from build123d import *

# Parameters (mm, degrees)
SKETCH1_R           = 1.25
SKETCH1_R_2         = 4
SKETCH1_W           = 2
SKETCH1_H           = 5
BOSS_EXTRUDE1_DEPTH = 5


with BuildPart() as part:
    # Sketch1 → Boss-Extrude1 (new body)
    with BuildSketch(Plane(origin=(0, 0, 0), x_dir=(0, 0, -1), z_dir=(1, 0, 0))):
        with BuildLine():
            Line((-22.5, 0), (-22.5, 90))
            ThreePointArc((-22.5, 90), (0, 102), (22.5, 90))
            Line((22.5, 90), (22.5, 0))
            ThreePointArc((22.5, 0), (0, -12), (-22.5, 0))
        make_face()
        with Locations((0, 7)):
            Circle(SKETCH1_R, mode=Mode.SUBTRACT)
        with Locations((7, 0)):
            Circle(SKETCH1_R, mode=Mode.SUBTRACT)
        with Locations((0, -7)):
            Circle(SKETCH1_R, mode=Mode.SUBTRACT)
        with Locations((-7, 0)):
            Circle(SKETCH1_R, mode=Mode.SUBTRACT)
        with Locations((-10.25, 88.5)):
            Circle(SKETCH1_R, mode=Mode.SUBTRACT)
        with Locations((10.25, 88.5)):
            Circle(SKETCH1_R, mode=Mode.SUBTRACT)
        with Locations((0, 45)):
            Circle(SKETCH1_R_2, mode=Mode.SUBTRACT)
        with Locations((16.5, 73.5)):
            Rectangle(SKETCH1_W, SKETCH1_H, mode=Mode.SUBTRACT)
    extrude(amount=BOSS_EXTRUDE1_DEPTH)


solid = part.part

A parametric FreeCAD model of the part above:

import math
import FreeCAD as App
import Part
import Sketcher
from FreeCAD import Vector

doc = App.newDocument("Part")
params = doc.addObject("Spreadsheet::Sheet", "Params")
for row, (alias, value) in enumerate([
    ("sketch1_diameter", "8 mm"),
    ("sketch1_diameter2", "2.5 mm"),
    ("sketch1_width", "90 mm"),
    ("sketch1_width2", "5 mm"),
    ("sketch1_height", "2 mm"),
    ("pad1_length", "5 mm"),
], start=1):
    params.set(f"A{row}", alias)
    params.set(f"B{row}", "=" + value)
    params.setAlias(f"B{row}", alias)

body = doc.addObject("PartDesign::Body", "Body")

# Sketch on YZ plane
sketch1 = body.newObject("Sketcher::SketchObject", "Sketch")
sketch1.AttachmentSupport = (doc.getObject("YZ_Plane"), [""])
sketch1.MapMode = "FlatFace"
sketch1.addGeometry(Part.LineSegment(Vector(90, 22.5, 0), Vector(0, 22.5, 0)), False)
sketch1.addGeometry(Part.ArcOfCircle(Part.Circle(Vector(15.09375, 0, 0), Vector(0, 0, 1), 27.09375), math.radians(123.855026), math.radians(236.144974)), False)
sketch1.addGeometry(Part.LineSegment(Vector(0, -22.5, 0), Vector(90, -22.5, 0)), False)
sketch1.addGeometry(Part.ArcOfCircle(Part.Circle(Vector(74.90625, 0, 0), Vector(0, 0, 1), 27.09375), math.radians(-56.144974), math.radians(56.144974)), False)
sketch1.addGeometry(Part.Circle(Vector(0, -7, 0), Vector(0, 0, 1), 1.25), False)
sketch1.addGeometry(Part.Circle(Vector(-7, 0, 0), Vector(0, 0, 1), 1.25), False)
sketch1.addGeometry(Part.Circle(Vector(7, 0, 0), Vector(0, 0, 1), 1.25), False)
sketch1.addGeometry(Part.Circle(Vector(0, 7, 0), Vector(0, 0, 1), 1.25), False)
sketch1.addGeometry(Part.LineSegment(Vector(71, -15.5, 0), Vector(76, -15.5, 0)), False)
sketch1.addGeometry(Part.LineSegment(Vector(76, -15.5, 0), Vector(76, -17.5, 0)), False)
sketch1.addGeometry(Part.LineSegment(Vector(76, -17.5, 0), Vector(71, -17.5, 0)), False)
sketch1.addGeometry(Part.LineSegment(Vector(71, -17.5, 0), Vector(71, -15.5, 0)), False)
sketch1.addGeometry(Part.Circle(Vector(88.5, -10.25, 0), Vector(0, 0, 1), 1.25), False)
sketch1.addGeometry(Part.Circle(Vector(45, 0, 0), Vector(0, 0, 1), 4), False)
sketch1.addGeometry(Part.Circle(Vector(88.5, 10.25, 0), Vector(0, 0, 1), 1.25), False)
sketch1.addConstraint(Sketcher.Constraint("Coincident", 0, 2, 1, 1))
sketch1.addConstraint(Sketcher.Constraint("Coincident", 1, 2, 2, 1))
sketch1.addConstraint(Sketcher.Constraint("Coincident", 2, 2, 3, 1))
sketch1.addConstraint(Sketcher.Constraint("Coincident", 3, 2, 0, 1))
sketch1.addConstraint(Sketcher.Constraint("Coincident", 8, 2, 9, 1))
sketch1.addConstraint(Sketcher.Constraint("Coincident", 9, 2, 10, 1))
sketch1.addConstraint(Sketcher.Constraint("Coincident", 10, 2, 11, 1))
sketch1.addConstraint(Sketcher.Constraint("Coincident", 11, 2, 8, 1))
sketch1.addConstraint(Sketcher.Constraint("Horizontal", 0))
sketch1.addConstraint(Sketcher.Constraint("Horizontal", 2))
sketch1.addConstraint(Sketcher.Constraint("Horizontal", 8))
sketch1.addConstraint(Sketcher.Constraint("Vertical", 9))
sketch1.addConstraint(Sketcher.Constraint("Horizontal", 10))
sketch1.addConstraint(Sketcher.Constraint("Vertical", 11))
sketch1.addConstraint(Sketcher.Constraint("Equal", 1, 3))
sketch1.addConstraint(Sketcher.Constraint("Equal", 4, 5))
sketch1.addConstraint(Sketcher.Constraint("Equal", 5, 6))
sketch1.addConstraint(Sketcher.Constraint("Equal", 6, 7))
sketch1.addConstraint(Sketcher.Constraint("Equal", 7, 12))
sketch1.addConstraint(Sketcher.Constraint("Equal", 12, 14))
sketch1.addConstraint(Sketcher.Constraint("Symmetric", 5, 3, 6, 3, -1, 1))
sketch1.addConstraint(Sketcher.Constraint("Symmetric", 4, 3, 7, 3, -1, 1))
sketch1.addConstraint(Sketcher.Constraint("Symmetric", 0, 2, 1, 2, -1, 1))
sketch1.addConstraint(Sketcher.Constraint("Symmetric", 12, 3, 14, 3, -1))
sketch1.addConstraint(Sketcher.Constraint("PointOnObject", 1, 3, -1))
sketch1.addConstraint(Sketcher.Constraint("PointOnObject", 3, 3, -1))
sketch1.addConstraint(Sketcher.Constraint("PointOnObject", 4, 3, -2))
sketch1.addConstraint(Sketcher.Constraint("PointOnObject", 5, 3, -1))
sketch1.addConstraint(Sketcher.Constraint("PointOnObject", 13, 3, -1))
sketch1.addConstraint(Sketcher.Constraint("Diameter", 13, 8.0))
sketch1.addConstraint(Sketcher.Constraint("Diameter", 4, 2.5))
sketch1.addConstraint(Sketcher.Constraint("DistanceX", 0, 2, 0, 1, 90.0))
sketch1.addConstraint(Sketcher.Constraint("DistanceX", 8, 1, 8, 2, 5.0))
sketch1.addConstraint(Sketcher.Constraint("DistanceY", 9, 2, 9, 1, 2.0))
sketch1.addConstraint(Sketcher.Constraint("DistanceY", 4, 3, -1, 1, 7.0))
sketch1.addConstraint(Sketcher.Constraint("DistanceX", 5, 3, -1, 1, 7.0))
sketch1.addConstraint(Sketcher.Constraint("DistanceX", -1, 1, 13, 3, 45.0))
sketch1.addConstraint(Sketcher.Constraint("DistanceX", -1, 1, 8, 2, 76.0))
sketch1.addConstraint(Sketcher.Constraint("DistanceY", 2, 2, 3, 2, 45.0))
sketch1.addConstraint(Sketcher.Constraint("DistanceY", 2, 2, 8, 2, 7.0))
sketch1.addConstraint(Sketcher.Constraint("DistanceX", -1, 1, 12, 3, 88.5))
sketch1.addConstraint(Sketcher.Constraint("DistanceY", 12, 3, 14, 3, 20.5))
sketch1.addConstraint(Sketcher.Constraint("Radius", 1, 27.09375))
sketch1.setExpression("Constraints[29]", "Params.sketch1_diameter")
sketch1.setExpression("Constraints[30]", "Params.sketch1_diameter2")
sketch1.setExpression("Constraints[31]", "Params.sketch1_width")
sketch1.setExpression("Constraints[32]", "Params.sketch1_width2")
sketch1.setExpression("Constraints[33]", "Params.sketch1_height")
pad1 = body.newObject("PartDesign::Pad", "Pad")
pad1.Profile = sketch1
pad1.setExpression("Length", "Params.pad1_length")

doc.recompute()
